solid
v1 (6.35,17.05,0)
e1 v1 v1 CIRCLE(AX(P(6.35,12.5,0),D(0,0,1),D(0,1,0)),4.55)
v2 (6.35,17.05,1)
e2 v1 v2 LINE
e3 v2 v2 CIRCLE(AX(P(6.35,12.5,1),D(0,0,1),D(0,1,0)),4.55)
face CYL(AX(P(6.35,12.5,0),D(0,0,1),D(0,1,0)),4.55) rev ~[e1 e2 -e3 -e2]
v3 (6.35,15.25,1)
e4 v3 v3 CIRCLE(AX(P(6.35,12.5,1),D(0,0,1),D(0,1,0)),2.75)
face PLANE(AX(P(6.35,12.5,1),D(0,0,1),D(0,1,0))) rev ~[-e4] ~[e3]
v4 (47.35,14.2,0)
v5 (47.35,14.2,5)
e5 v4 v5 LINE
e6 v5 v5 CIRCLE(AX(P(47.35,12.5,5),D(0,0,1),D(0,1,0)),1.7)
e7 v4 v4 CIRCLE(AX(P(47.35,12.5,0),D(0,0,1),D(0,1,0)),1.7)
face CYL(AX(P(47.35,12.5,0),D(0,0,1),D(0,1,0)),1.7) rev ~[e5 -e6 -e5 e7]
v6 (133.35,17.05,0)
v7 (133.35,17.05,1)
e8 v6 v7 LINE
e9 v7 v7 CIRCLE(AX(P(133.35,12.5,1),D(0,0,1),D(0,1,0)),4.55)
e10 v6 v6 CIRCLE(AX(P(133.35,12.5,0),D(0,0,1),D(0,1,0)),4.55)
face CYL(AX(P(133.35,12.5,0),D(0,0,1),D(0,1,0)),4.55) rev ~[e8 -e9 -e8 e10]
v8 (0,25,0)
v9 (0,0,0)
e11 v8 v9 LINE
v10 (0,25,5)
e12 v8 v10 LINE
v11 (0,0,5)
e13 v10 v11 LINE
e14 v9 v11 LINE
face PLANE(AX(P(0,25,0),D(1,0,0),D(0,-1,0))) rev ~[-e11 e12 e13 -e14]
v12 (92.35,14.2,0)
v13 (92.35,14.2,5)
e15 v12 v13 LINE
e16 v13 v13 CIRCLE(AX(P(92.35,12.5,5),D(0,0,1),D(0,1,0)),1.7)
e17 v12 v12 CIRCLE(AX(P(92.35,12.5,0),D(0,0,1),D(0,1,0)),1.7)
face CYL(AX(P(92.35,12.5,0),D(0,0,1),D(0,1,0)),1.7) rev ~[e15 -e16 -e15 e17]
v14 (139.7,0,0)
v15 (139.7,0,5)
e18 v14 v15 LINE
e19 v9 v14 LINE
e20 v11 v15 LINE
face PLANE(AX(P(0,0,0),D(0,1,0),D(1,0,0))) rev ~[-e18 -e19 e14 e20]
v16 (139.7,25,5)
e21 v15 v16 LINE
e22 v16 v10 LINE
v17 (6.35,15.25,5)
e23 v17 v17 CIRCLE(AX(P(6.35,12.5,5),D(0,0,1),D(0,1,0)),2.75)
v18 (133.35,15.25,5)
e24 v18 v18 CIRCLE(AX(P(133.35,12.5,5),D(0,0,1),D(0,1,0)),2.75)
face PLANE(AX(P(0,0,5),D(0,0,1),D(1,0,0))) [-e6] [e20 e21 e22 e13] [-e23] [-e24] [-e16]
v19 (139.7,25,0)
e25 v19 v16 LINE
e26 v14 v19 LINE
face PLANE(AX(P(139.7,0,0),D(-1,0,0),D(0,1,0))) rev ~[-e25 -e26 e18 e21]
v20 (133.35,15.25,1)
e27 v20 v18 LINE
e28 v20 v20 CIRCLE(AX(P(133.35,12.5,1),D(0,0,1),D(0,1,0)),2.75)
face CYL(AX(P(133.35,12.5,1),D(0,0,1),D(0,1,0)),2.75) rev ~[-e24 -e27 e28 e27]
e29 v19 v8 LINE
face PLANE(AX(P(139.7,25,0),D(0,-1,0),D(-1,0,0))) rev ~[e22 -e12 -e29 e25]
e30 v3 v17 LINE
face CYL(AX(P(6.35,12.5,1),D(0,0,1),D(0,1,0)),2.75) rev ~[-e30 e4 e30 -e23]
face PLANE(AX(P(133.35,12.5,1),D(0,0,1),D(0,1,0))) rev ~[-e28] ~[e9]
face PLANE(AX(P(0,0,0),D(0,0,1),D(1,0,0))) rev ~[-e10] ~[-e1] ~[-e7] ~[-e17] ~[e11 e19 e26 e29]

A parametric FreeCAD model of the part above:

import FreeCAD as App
import Part
import Sketcher


def add_polygon(sketch, points):
    """Adds a closed chain of lines whose ends are joined by coincident constraints."""
    first, n = sketch.GeometryCount, len(points)
    for a, b in zip(points, points[1:] + points[:1]):
        sketch.addGeometry(Part.LineSegment(App.Vector(*a, 0), App.Vector(*b, 0)), False)
    for i in range(n):
        sketch.addConstraint(Sketcher.Constraint("Coincident", first + i, 2, first + (i + 1) % n, 1))

doc = App.newDocument("Part")
params = doc.addObject("Spreadsheet::Sheet", "Params")
for row, (alias, value) in enumerate([
    ("sketch1_height", "25 mm"),
    ("sketch1_width", "139.7 mm"),
    ("pad1_length", "5 mm"),
    ("sketch2_diameter", "5.5 mm"),
    ("hole_diameter", "5.5 mm"),
    ("hole_depth", "13 mm"),
    ("hole_cbore_diameter", "9.1 mm"),
    ("hole_cbore_depth", "1 mm"),
    ("sketch3_diameter", "3.4 mm"),
    ("hole2_diameter", "3.4 mm"),
    ("hole2_depth", "13 mm"),
], start=1):
    params.set(f"A{row}", alias)
    params.set(f"B{row}", "=" + value)
    params.setAlias(f"B{row}", alias)

body = doc.addObject("PartDesign::Body", "Body")

# Sketch on XY plane
sketch1 = body.newObject("Sketcher::SketchObject", "Sketch")
sketch1.AttachmentSupport = (doc.getObject("XY_Plane"), [""])
sketch1.MapMode = "FlatFace"
add_polygon(sketch1, [(0, 25), (0, 0), (140, 0), (140, 25)])  # lines 0-3
sketch1.addConstraint([
    Sketcher.Constraint("Vertical", 0),
    Sketcher.Constraint("Horizontal", 1),
    Sketcher.Constraint("Vertical", 2),
    Sketcher.Constraint("Horizontal", 3),
    Sketcher.Constraint("Coincident", 0, 2, -1, 1),
    Sketcher.Constraint("DistanceY", 0, 2, 0, 1, 25.0),
    Sketcher.Constraint("DistanceX", 1, 1, 1, 2, 139.7),
])
sketch1.setExpression("Constraints[9]", "Params.sketch1_height")
sketch1.setExpression("Constraints[10]", "Params.sketch1_width")
pad1 = body.newObject("PartDesign::Pad", "Pad")
pad1.Profile = sketch1
pad1.setExpression("Length", "Params.pad1_length")

# Sketch on XY plane
sketch2 = body.newObject("Sketcher::SketchObject", "Sketch001")
sketch2.AttachmentSupport = (doc.getObject("XY_Plane"), [""])
sketch2.MapMode = "FlatFace"
sketch2.addGeometry([
    Part.Circle(App.Vector(6.3, 12.5, 0), App.Vector(0, 0, 1), 2.8),
    Part.Circle(App.Vector(133.3, 12.5, 0), App.Vector(0, 0, 1), 2.8),
], False)
sketch2.addConstraint([
    Sketcher.Constraint("Equal", 0, 1),
    Sketcher.Constraint("Horizontal", 0, 3, 1, 3),
    Sketcher.Constraint("Diameter", 0, 5.5),
    Sketcher.Constraint("DistanceX", 0, 3, 1, 3, 127.0),
    Sketcher.Constraint("DistanceY", -1, 1, 0, 3, 12.5),
    Sketcher.Constraint("DistanceX", -1, 1, 0, 3, 6.35),
])
sketch2.setExpression("Constraints[2]", "Params.sketch2_diameter")
doc.recompute()
hole = body.newObject("PartDesign::Hole", "Hole")
hole.Profile = sketch2
hole.ThreadType = "None"
hole.setExpression("Diameter", "Params.hole_diameter")
hole.DepthType = "Dimension"
hole.setExpression("Depth", "Params.hole_depth")
hole.DrillPoint = "Angled"
hole.DrillPointAngle = 118
hole.HoleCutType = "Counterbore"
hole.setExpression("HoleCutDiameter", "Params.hole_cbore_diameter")
hole.setExpression("HoleCutDepth", "Params.hole_cbore_depth")
hole.Reversed = True

# Sketch on XY plane
sketch3 = body.newObject("Sketcher::SketchObject", "Sketch002")
sketch3.AttachmentSupport = (doc.getObject("XY_Plane"), [""])
sketch3.MapMode = "FlatFace"
sketch3.addGeometry([
    Part.Circle(App.Vector(92.3, 12.5, 0), App.Vector(0, 0, 1), 1.7),
    Part.Circle(App.Vector(47.4, 12.5, 0), App.Vector(0, 0, 1), 1.7),
], False)
sketch3.addConstraint([
    Sketcher.Constraint("Equal", 0, 1),
    Sketcher.Constraint("Horizontal", 0, 3, 1, 3),
    Sketcher.Constraint("Diameter", 0, 3.4),
    Sketcher.Constraint("DistanceX", 1, 3, 0, 3, 45.0),
    Sketcher.Constraint("DistanceY", -1, 1, 0, 3, 12.5),
    Sketcher.Constraint("DistanceX", -1, 1, 0, 3, 92.35),
])
sketch3.setExpression("Constraints[2]", "Params.sketch3_diameter")
doc.recompute()
hole2 = body.newObject("PartDesign::Hole", "Hole001")
hole2.Profile = sketch3
hole2.ThreadType = "None"
hole2.setExpression("Diameter", "Params.hole2_diameter")
hole2.DepthType = "Dimension"
hole2.setExpression("Depth", "Params.hole2_depth")
hole2.DrillPoint = "Angled"
hole2.DrillPointAngle = 118
hole2.Reversed = True

doc.recompute()
